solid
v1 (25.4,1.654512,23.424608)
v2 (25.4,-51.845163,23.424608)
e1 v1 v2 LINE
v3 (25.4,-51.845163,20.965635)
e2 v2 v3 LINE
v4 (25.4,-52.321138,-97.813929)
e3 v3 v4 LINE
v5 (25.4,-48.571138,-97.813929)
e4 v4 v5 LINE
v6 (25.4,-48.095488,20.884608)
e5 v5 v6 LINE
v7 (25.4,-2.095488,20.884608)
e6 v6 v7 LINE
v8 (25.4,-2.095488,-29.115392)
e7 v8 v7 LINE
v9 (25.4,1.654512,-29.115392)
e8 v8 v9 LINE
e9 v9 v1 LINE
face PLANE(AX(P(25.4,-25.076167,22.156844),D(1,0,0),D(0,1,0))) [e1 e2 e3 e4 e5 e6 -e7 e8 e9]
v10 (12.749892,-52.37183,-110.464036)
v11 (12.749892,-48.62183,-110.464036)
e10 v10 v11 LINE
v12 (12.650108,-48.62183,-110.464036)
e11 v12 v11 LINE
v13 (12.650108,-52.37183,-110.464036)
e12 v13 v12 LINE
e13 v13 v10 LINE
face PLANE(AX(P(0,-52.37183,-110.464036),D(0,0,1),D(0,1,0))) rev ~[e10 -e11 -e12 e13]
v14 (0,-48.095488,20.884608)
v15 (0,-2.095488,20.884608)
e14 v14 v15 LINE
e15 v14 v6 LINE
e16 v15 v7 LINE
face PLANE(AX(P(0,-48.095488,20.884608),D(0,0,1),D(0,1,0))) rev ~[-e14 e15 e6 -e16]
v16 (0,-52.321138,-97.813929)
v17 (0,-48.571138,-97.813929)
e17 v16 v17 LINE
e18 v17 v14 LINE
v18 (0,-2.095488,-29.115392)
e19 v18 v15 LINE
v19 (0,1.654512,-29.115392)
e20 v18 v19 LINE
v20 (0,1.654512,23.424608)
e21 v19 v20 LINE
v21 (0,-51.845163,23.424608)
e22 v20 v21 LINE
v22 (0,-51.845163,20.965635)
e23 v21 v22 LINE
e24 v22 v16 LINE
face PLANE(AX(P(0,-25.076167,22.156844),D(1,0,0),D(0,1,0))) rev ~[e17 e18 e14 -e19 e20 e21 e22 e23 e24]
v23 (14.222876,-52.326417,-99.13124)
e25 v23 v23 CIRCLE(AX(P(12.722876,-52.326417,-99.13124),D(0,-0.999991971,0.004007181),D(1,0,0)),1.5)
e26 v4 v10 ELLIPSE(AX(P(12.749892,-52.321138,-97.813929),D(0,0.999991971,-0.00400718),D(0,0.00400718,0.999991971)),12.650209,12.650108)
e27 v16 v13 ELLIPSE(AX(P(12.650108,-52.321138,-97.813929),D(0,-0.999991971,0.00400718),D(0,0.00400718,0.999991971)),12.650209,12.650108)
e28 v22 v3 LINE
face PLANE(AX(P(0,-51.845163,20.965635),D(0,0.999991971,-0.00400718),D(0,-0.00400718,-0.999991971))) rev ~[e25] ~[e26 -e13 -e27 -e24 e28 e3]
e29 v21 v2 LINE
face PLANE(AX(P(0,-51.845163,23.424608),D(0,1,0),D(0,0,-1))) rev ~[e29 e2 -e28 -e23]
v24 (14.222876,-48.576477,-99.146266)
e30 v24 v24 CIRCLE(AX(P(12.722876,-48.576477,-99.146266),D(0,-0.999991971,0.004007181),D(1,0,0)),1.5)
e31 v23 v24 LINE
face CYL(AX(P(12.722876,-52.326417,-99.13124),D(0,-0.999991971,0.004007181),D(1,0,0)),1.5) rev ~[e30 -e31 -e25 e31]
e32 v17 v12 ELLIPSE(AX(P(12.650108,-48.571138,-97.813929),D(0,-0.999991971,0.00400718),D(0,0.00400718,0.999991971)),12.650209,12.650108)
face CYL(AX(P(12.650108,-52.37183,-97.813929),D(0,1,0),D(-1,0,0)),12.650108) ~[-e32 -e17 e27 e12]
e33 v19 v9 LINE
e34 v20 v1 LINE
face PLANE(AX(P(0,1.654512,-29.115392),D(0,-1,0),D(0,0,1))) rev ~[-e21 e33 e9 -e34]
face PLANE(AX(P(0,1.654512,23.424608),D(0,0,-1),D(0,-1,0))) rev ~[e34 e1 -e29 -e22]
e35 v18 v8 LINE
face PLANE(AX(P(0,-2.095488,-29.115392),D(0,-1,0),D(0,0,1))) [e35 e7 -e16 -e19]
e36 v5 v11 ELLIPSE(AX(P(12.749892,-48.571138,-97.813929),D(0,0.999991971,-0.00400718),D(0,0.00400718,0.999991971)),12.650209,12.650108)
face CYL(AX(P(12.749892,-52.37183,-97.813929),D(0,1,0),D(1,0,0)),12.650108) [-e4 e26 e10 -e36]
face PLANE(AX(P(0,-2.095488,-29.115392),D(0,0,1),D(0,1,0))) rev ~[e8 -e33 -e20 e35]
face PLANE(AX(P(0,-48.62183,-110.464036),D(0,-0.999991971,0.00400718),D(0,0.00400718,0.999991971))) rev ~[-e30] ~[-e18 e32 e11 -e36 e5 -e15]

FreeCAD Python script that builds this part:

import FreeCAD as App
import Part
import Sketcher


def edges_at(feature, points):
    """Names of the edges that pass closest to the given points."""
    edges = feature.Shape.Edges
    near = lambda p: min(range(len(edges)), key=lambda i: edges[i].distToShape(Part.Vertex(*p))[0])
    return sorted({f"Edge{near(p) + 1}" for p in points})

doc = App.newDocument("Part")
body = doc.addObject("PartDesign::Body", "Body")

sketch1 = body.newObject("Sketcher::SketchObject", "Sketch")
sketch1.AttachmentSupport = (doc.getObject("YZ_Plane"), [""])
sketch1.MapMode = "FlatFace"
sketch1.addGeometry(Part.LineSegment(App.Vector(-48.095488, 20.884608, 0), App.Vector(-2.095488, 20.884608, 0)), False)
sketch1.addGeometry(Part.LineSegment(App.Vector(-2.095488, 20.884608, 0), App.Vector(-2.095488, -29.115392, 0)), False)
sketch1.addGeometry(Part.LineSegment(App.Vector(-2.095488, -29.115392, 0), App.Vector(1.654512, -29.115392, 0)), False)
sketch1.addGeometry(Part.LineSegment(App.Vector(1.654512, -29.115392, 0), App.Vector(1.654512, 23.424608, 0)), False)
sketch1.addGeometry(Part.LineSegment(App.Vector(1.654512, 23.424608, 0), App.Vector(-51.845163, 23.424608, 0)), False)
sketch1.addGeometry(Part.LineSegment(App.Vector(-51.845163, 23.424608, 0), App.Vector(-51.845163, 20.965635, 0)), False)
sketch1.addGeometry(Part.LineSegment(App.Vector(-51.845163, 20.965635, 0), App.Vector(-52.37183, -110.464036, 0)), False)
sketch1.addGeometry(Part.LineSegment(App.Vector(-52.37183, -110.464036, 0), App.Vector(-48.62183, -110.464036, 0)), False)
sketch1.addGeometry(Part.LineSegment(App.Vector(-48.62183, -110.464036, 0), App.Vector(-48.095488, 20.884608, 0)), False)
sketch1.addConstraint(Sketcher.Constraint("Coincident", 0, 2, 1, 1))
sketch1.addConstraint(Sketcher.Constraint("Coincident", 1, 2, 2, 1))
sketch1.addConstraint(Sketcher.Constraint("Coincident", 2, 2, 3, 1))
sketch1.addConstraint(Sketcher.Constraint("Coincident", 3, 2, 4, 1))
sketch1.addConstraint(Sketcher.Constraint("Coincident", 4, 2, 5, 1))
sketch1.addConstraint(Sketcher.Constraint("Coincident", 5, 2, 6, 1))
sketch1.addConstraint(Sketcher.Constraint("Coincident", 6, 2, 7, 1))
sketch1.addConstraint(Sketcher.Constraint("Coincident", 7, 2, 8, 1))
sketch1.addConstraint(Sketcher.Constraint("Coincident", 8, 2, 0, 1))
sketch1.addConstraint(Sketcher.Constraint("Horizontal", 0))
sketch1.addConstraint(Sketcher.Constraint("Vertical", 1))
sketch1.addConstraint(Sketcher.Constraint("Horizontal", 2))
sketch1.addConstraint(Sketcher.Constraint("Vertical", 3))
sketch1.addConstraint(Sketcher.Constraint("Horizontal", 4))
sketch1.addConstraint(Sketcher.Constraint("Vertical", 5))
sketch1.addConstraint(Sketcher.Constraint("Horizontal", 7))
sketch1.addConstraint(Sketcher.Constraint("DistanceX", 0, 1, 0, 2, 46.0))
sketch1.addConstraint(Sketcher.Constraint("DistanceY", 1, 2, 1, 1, 50.0))
sketch1.addConstraint(Sketcher.Constraint("DistanceX", 2, 1, 2, 2, 3.75))
sketch1.addConstraint(Sketcher.Constraint("DistanceX", 7, 1, 7, 2, 3.75))
sketch1.addConstraint(Sketcher.Constraint("DistanceY", 3, 1, 3, 2, 52.54))
sketch1.addConstraint(Sketcher.Constraint("Distance", 8, 131.349699))
sketch1.addConstraint(Sketcher.Constraint("DistanceX", 4, 2, 4, 1, 53.499675))
sketch1.addConstraint(Sketcher.Constraint("DistanceY", 5, 2, 5, 1, 2.458973))
sketch1.addConstraint(Sketcher.Constraint("DistanceY", -1, 1, 0, 2, 20.884608))
sketch1.addConstraint(Sketcher.Constraint("DistanceX", 6, 2, -1, 1, 52.37183))
sketch1.addConstraint(Sketcher.Constraint("DistanceX", 6, 2, 1, 2, 50.276342))
pad1 = body.newObject("PartDesign::Pad", "Pad")
pad1.Profile = sketch1
pad1.Length = 25.4

sketch2 = body.newObject("Sketcher::SketchObject", "Sketch001")
sketch2.Placement = App.Placement(App.Vector(0, -51.928343, 0.208088), App.Rotation(App.Vector(1, 0, 0), App.Vector(0, 0.004007181, 0.999991971), App.Vector(0, -0.999991971, 0.004007181), "ZXY"))
sketch2.addGeometry(Part.Circle(App.Vector(12.7, -99.3, 0), App.Vector(0, 0, 1), 1.5), False)
sketch2.addConstraint(Sketcher.Constraint("Diameter", 0, 3.0))
sketch2.addConstraint(Sketcher.Constraint("DistanceX", -1, 1, 0, 3, 12.722876))
sketch2.addConstraint(Sketcher.Constraint("DistanceY", 0, 3, -1, 1, 99.340125))
pocket1 = body.newObject("PartDesign::Pocket", "Pocket")
pocket1.Profile = sketch2
pocket1.Length = 3.75
doc.recompute()

fillet = body.newObject("PartDesign::Fillet", "Fillet")
fillet.Base = (pocket1, edges_at(pocket1, [(25.4, -50.497, -110.464), (0, -50.497, -110.464)]))
fillet.Radius = 12.650108

doc.recompute()
